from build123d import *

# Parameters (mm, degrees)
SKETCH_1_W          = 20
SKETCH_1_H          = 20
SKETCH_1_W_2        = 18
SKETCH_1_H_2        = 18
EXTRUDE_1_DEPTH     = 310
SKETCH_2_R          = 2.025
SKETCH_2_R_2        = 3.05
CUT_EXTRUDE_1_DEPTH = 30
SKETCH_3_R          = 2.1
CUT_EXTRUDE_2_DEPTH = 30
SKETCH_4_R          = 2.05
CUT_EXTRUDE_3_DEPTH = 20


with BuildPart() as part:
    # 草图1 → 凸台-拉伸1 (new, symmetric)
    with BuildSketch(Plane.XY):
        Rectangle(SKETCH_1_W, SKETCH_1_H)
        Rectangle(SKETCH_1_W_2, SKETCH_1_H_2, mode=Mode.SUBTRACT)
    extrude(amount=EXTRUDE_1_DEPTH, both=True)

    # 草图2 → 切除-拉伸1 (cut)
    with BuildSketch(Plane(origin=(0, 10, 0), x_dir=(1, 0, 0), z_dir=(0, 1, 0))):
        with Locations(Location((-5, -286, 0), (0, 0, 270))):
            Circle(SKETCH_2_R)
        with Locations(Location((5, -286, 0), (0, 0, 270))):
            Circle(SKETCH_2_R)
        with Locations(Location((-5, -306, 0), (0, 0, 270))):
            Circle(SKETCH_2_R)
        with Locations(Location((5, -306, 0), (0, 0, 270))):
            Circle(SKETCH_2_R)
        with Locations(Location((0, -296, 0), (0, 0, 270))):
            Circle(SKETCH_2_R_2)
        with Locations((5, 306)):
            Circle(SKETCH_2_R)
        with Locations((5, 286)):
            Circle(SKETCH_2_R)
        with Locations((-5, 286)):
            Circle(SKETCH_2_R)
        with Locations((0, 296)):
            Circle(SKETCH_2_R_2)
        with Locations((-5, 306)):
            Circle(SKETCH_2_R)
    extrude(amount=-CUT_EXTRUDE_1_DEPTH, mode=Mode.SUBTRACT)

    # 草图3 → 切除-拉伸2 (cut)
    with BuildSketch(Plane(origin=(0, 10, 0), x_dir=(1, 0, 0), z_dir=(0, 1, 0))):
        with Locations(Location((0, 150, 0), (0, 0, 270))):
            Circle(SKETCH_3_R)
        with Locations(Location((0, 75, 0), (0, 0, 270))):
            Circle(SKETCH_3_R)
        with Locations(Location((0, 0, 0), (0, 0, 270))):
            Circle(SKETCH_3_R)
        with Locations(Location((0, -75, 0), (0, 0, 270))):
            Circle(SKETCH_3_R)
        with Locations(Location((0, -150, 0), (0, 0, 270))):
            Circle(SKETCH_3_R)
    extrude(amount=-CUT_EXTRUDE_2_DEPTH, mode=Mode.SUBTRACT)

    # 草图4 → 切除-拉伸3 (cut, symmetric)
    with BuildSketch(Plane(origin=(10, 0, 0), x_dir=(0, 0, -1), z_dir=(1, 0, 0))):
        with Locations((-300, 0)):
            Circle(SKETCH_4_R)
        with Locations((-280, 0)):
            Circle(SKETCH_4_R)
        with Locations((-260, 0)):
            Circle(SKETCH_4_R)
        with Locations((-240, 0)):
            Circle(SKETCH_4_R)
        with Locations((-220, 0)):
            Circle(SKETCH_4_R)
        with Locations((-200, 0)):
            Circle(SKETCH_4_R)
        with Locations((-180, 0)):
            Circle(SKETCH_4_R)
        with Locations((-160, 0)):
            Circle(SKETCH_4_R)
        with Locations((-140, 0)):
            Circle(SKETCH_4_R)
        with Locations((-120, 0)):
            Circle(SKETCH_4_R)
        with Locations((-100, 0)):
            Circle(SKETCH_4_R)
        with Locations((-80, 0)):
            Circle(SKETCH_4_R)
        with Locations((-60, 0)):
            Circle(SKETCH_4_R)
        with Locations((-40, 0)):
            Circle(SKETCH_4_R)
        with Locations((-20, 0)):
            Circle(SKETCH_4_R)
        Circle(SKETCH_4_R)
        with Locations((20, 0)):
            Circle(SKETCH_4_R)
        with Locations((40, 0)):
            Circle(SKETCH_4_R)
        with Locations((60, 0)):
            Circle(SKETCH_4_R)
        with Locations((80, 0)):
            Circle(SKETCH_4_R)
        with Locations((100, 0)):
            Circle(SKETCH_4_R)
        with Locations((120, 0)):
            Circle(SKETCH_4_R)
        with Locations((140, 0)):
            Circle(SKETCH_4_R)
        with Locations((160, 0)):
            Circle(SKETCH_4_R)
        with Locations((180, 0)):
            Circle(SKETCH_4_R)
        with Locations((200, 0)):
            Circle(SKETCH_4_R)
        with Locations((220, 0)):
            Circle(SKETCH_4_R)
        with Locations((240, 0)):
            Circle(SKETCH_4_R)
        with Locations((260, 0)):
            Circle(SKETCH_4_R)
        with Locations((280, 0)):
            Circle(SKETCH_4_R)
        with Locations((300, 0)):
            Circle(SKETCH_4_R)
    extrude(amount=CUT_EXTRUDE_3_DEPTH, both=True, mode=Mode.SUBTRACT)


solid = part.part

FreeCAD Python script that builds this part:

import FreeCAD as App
import Part
import Sketcher
from FreeCAD import Vector
Q = App.Units.Quantity


def add_polygon(sketch, points):
    """Adds a closed chain of lines whose ends are joined by coincident constraints."""
    first, n = sketch.GeometryCount, len(points)
    for a, b in zip(points, points[1:] + points[:1]):
        sketch.addGeometry(Part.LineSegment(App.Vector(*a, 0), App.Vector(*b, 0)), False)
    for i in range(n):
        sketch.addConstraint(Sketcher.Constraint("Coincident", first + i, 2, first + (i + 1) % n, 1))

doc = App.newDocument("Part")
params = doc.addObject("Spreadsheet::Sheet", "Params")
for row, (alias, value) in enumerate([
    ("sketch1_width", "20 mm"),
    ("sketch1_width2", "18 mm"),
    ("pad1_length", "620 mm"),
    ("sketch2_diameter", "6.1 mm"),
    ("sketch2_diameter2", "4.05 mm"),
    ("pocket1_length", "30 mm"),
    ("sketch3_diameter", "4.2 mm"),
    ("pocket2_length", "30 mm"),
    ("sketch4_diameter", "4.1 mm"),
    ("pocket3_length", "40 mm"),
], start=1):
    params.set(f"A{row}", alias)
    params.set(f"B{row}", "=" + value)
    params.setAlias(f"B{row}", alias)

body = doc.addObject("PartDesign::Body", "Body")

sketch1 = body.newObject("Sketcher::SketchObject", "Sketch")
sketch1.AttachmentSupport = (doc.getObject("XY_Plane"), [""])
sketch1.MapMode = "FlatFace"
add_polygon(sketch1, [(-10, 10), (-10, -10), (10, -10), (10, 10)])
add_polygon(sketch1, [(9, -9), (-9, -9), (-9, 9), (9, 9)])
sketch1.addConstraint([
    Sketcher.Constraint("Vertical", 0),
    Sketcher.Constraint("Horizontal", 1),
    Sketcher.Constraint("Vertical", 2),
    Sketcher.Constraint("Horizontal", 3),
    Sketcher.Constraint("Horizontal", 4),
    Sketcher.Constraint("Vertical", 5),
    Sketcher.Constraint("Horizontal", 6),
    Sketcher.Constraint("Vertical", 7),
    Sketcher.Constraint("Symmetric", 0, 2, 2, 2, -1, 1),
    Sketcher.Constraint("Symmetric", 4, 2, 6, 2, -1, 1),
    Sketcher.Constraint("Equal", 3, 0),
    Sketcher.Constraint("Equal", 6, 5),
    Sketcher.Constraint("DistanceX", 1, 1, 1, 2, Q("20 mm")),
    Sketcher.Constraint("DistanceX", 4, 2, 4, 1, Q("18 mm")),
])
sketch1.setExpression("Constraints[20]", "Params.sketch1_width")
sketch1.setExpression("Constraints[21]", "Params.sketch1_width2")
pad1 = body.newObject("PartDesign::Pad", "Pad")
pad1.Profile = sketch1
pad1.setExpression("Length", "Params.pad1_length")
pad1.Midplane = True

sketch2 = body.newObject("Sketcher::SketchObject", "Sketch001")
sketch2.AttachmentSupport = (doc.getObject("XZ_Plane"), [""])
sketch2.MapMode = "FlatFace"
sketch2.AttachmentOffset = App.Placement(Vector(0, 0, -10), App.Rotation())
sketch2.addGeometry([
    Part.Circle(Vector(-5, 286, 0), Vector(0, 0, 1), 2.025),
    Part.Circle(Vector(5, 286, 0), Vector(0, 0, 1), 2.025),
    Part.Circle(Vector(-5, 306, 0), Vector(0, 0, 1), 2.025),
    Part.Circle(Vector(5, 306, 0), Vector(0, 0, 1), 2.025),
    Part.Circle(Vector(0, 296, 0), Vector(0, 0, 1), 3.05),
    Part.Circle(Vector(5, -306, 0), Vector(0, 0, 1), 2.025),
    Part.Circle(Vector(5, -286, 0), Vector(0, 0, 1), 2.025),
    Part.Circle(Vector(-5, -286, 0), Vector(0, 0, 1), 2.025),
    Part.Circle(Vector(0, -296, 0), Vector(0, 0, 1), 3.05),
    Part.Circle(Vector(-5, -306, 0), Vector(0, 0, 1), 2.025),
], False)
sketch2.addConstraint([
    Sketcher.Constraint("Equal", 0, 1),
    Sketcher.Constraint("Equal", 1, 2),
    Sketcher.Constraint("Equal", 2, 3),
    Sketcher.Constraint("Equal", 3, 5),
    Sketcher.Constraint("Equal", 5, 6),
    Sketcher.Constraint("Equal", 6, 7),
    Sketcher.Constraint("Equal", 4, 8),
    Sketcher.Constraint("Equal", 7, 9),
    Sketcher.Constraint("Symmetric", 2, 3, 5, 3, -1, 1),
    Sketcher.Constraint("Symmetric", 0, 3, 6, 3, -1, 1),
    Sketcher.Constraint("Symmetric", 1, 3, 7, 3, -1, 1),
    Sketcher.Constraint("Symmetric", 4, 3, 8, 3, -1, 1),
    Sketcher.Constraint("Symmetric", 3, 3, 9, 3, -1, 1),
    Sketcher.Constraint("Symmetric", 0, 3, 1, 3, -2),
    Sketcher.Constraint("Symmetric", 2, 3, 3, 3, -2),
    Sketcher.Constraint("PointOnObject", 4, 3, -2),
    Sketcher.Constraint("Vertical", 0, 3, 2, 3),
    Sketcher.Constraint("Diameter", 4, Q("6.1 mm")),
    Sketcher.Constraint("Diameter", 0, Q("4.05 mm")),
    Sketcher.Constraint("DistanceX", 0, 3, -1, 1, Q("5 mm")),
    Sketcher.Constraint("DistanceY", -1, 1, 0, 3, Q("286 mm")),
    Sketcher.Constraint("DistanceY", -1, 1, 2, 3, Q("306 mm")),
    Sketcher.Constraint("DistanceY", -1, 1, 4, 3, Q("296 mm")),
])
sketch2.setExpression("Constraints[17]", "Params.sketch2_diameter")
sketch2.setExpression("Constraints[18]", "Params.sketch2_diameter2")
pocket1 = body.newObject("PartDesign::Pocket", "Pocket")
pocket1.Profile = sketch2
pocket1.setExpression("Length", "Params.pocket1_length")
pocket1.Reversed = True

sketch3 = body.newObject("Sketcher::SketchObject", "Sketch002")
sketch3.AttachmentSupport = (doc.getObject("XZ_Plane"), [""])
sketch3.MapMode = "FlatFace"
sketch3.AttachmentOffset = App.Placement(Vector(0, 0, -10), App.Rotation())
sketch3.addGeometry([
    Part.Circle(Vector(0, -150, 0), Vector(0, 0, 1), 2.1),
    Part.Circle(Vector(0, -75, 0), Vector(0, 0, 1), 2.1),
    Part.Circle(Vector(0, 0, 0), Vector(0, 0, 1), 2.1),
    Part.Circle(Vector(0, 75, 0), Vector(0, 0, 1), 2.1),
    Part.Circle(Vector(0, 150, 0), Vector(0, 0, 1), 2.1),
], False)
sketch3.addConstraint([
    Sketcher.Constraint("Coincident", 2, 3, -1, 1),
    Sketcher.Constraint("Equal", 0, 1),
    Sketcher.Constraint("Equal", 1, 2),
    Sketcher.Constraint("Equal", 2, 3),
    Sketcher.Constraint("Equal", 3, 4),
    Sketcher.Constraint("Symmetric", 1, 3, 3, 3, -1, 1),
    Sketcher.Constraint("Symmetric", 0, 3, 4, 3, -1, 1),
    Sketcher.Constraint("PointOnObject", 0, 3, -2),
    Sketcher.Constraint("PointOnObject", 1, 3, -2),
    Sketcher.Constraint("Diameter", 0, Q("4.2 mm")),
    Sketcher.Constraint("DistanceY", 0, 3, -1, 1, Q("150 mm")),
    Sketcher.Constraint("DistanceY", 1, 3, -1, 1, Q("75 mm")),
])
sketch3.setExpression("Constraints[9]", "Params.sketch3_diameter")
pocket2 = body.newObject("PartDesign::Pocket", "Pocket001")
pocket2.Profile = sketch3
pocket2.setExpression("Length", "Params.pocket2_length")
pocket2.Reversed = True

sketch4 = body.newObject("Sketcher::SketchObject", "Sketch003")
sketch4.AttachmentSupport = (doc.getObject("YZ_Plane"), [""])
sketch4.MapMode = "FlatFace"
sketch4.AttachmentOffset = App.Placement(Vector(0, 0, 10), App.Rotation())
sketch4.addGeometry([
    Part.Circle(Vector(0, 300, 0), Vector(0, 0, 1), 2.05),
    Part.Circle(Vector(0, 280, 0), Vector(0, 0, 1), 2.05),
    Part.Circle(Vector(0, 260, 0), Vector(0, 0, 1), 2.05),
    Part.Circle(Vector(0, 240, 0), Vector(0, 0, 1), 2.05),
    Part.Circle(Vector(0, 220, 0), Vector(0, 0, 1), 2.05),
    Part.Circle(Vector(0, 200, 0), Vector(0, 0, 1), 2.05),
    Part.Circle(Vector(0, 180, 0), Vector(0, 0, 1), 2.05),
    Part.Circle(Vector(0, 160, 0), Vector(0, 0, 1), 2.05),
    Part.Circle(Vector(0, 140, 0), Vector(0, 0, 1), 2.05),
    Part.Circle(Vector(0, 120, 0), Vector(0, 0, 1), 2.05),
    Part.Circle(Vector(0, 100, 0), Vector(0, 0, 1), 2.05),
    Part.Circle(Vector(0, 80, 0), Vector(0, 0, 1), 2.05),
    Part.Circle(Vector(0, 60, 0), Vector(0, 0, 1), 2.05),
    Part.Circle(Vector(0, 40, 0), Vector(0, 0, 1), 2.05),
    Part.Circle(Vector(0, 20, 0), Vector(0, 0, 1), 2.05),
    Part.Circle(Vector(0, 0, 0), Vector(0, 0, 1), 2.05),
    Part.Circle(Vector(0, -20, 0), Vector(0, 0, 1), 2.05),
    Part.Circle(Vector(0, -40, 0), Vector(0, 0, 1), 2.05),
    Part.Circle(Vector(0, -60, 0), Vector(0, 0, 1), 2.05),
    Part.Circle(Vector(0, -80, 0), Vector(0, 0, 1), 2.05),
    Part.Circle(Vector(0, -100, 0), Vector(0, 0, 1), 2.05),
    Part.Circle(Vector(0, -120, 0), Vector(0, 0, 1), 2.05),
    Part.Circle(Vector(0, -140, 0), Vector(0, 0, 1), 2.05),
    Part.Circle(Vector(0, -160, 0), Vector(0, 0, 1), 2.05),
    Part.Circle(Vector(0, -180, 0), Vector(0, 0, 1), 2.05),
    Part.Circle(Vector(0, -200, 0), Vector(0, 0, 1), 2.05),
    Part.Circle(Vector(0, -220, 0), Vector(0, 0, 1), 2.05),
    Part.Circle(Vector(0, -240, 0), Vector(0, 0, 1), 2.05),
    Part.Circle(Vector(0, -260, 0), Vector(0, 0, 1), 2.05),
    Part.Circle(Vector(0, -280, 0), Vector(0, 0, 1), 2.05),
    Part.Circle(Vector(0, -300, 0), Vector(0, 0, 1), 2.05),
], False)
sketch4.addConstraint([
    Sketcher.Constraint("Coincident", 15, 3, -1, 1),
    Sketcher.Constraint("Equal", 0, 1),
    Sketcher.Constraint("Equal", 1, 2),
    Sketcher.Constraint("Equal", 2, 3),
    Sketcher.Constraint("Equal", 3, 4),
    Sketcher.Constraint("Equal", 4, 5),
    Sketcher.Constraint("Equal", 5, 6),
    Sketcher.Constraint("Equal", 6, 7),
    Sketcher.Constraint("Equal", 7, 8),
    Sketcher.Constraint("Equal", 8, 9),
    Sketcher.Constraint("Equal", 9, 10),
    Sketcher.Constraint("Equal", 10, 11),
    Sketcher.Constraint("Equal", 11, 12),
    Sketcher.Constraint("Equal", 12, 13),
    Sketcher.Constraint("Equal", 13, 14),
    Sketcher.Constraint("Equal", 14, 15),
    Sketcher.Constraint("Equal", 15, 16),
    Sketcher.Constraint("Equal", 16, 17),
    Sketcher.Constraint("Equal", 17, 18),
    Sketcher.Constraint("Equal", 18, 19),
    Sketcher.Constraint("Equal", 19, 20),
    Sketcher.Constraint("Equal", 20, 21),
    Sketcher.Constraint("Equal", 21, 22),
    Sketcher.Constraint("Equal", 22, 23),
    Sketcher.Constraint("Equal", 23, 24),
    Sketcher.Constraint("Equal", 24, 25),
    Sketcher.Constraint("Equal", 25, 26),
    Sketcher.Constraint("Equal", 26, 27),
    Sketcher.Constraint("Equal", 27, 28),
    Sketcher.Constraint("Equal", 28, 29),
    Sketcher.Constraint("Equal", 29, 30),
    Sketcher.Constraint("Symmetric", 14, 3, 16, 3, -1, 1),
    Sketcher.Constraint("Symmetric", 13, 3, 17, 3, -1, 1),
    Sketcher.Constraint("Symmetric", 12, 3, 18, 3, -1, 1),
    Sketcher.Constraint("Symmetric", 11, 3, 19, 3, -1, 1),
    Sketcher.Constraint("Symmetric", 10, 3, 20, 3, -1, 1),
    Sketcher.Constraint("Symmetric", 9, 3, 21, 3, -1, 1),
    Sketcher.Constraint("Symmetric", 8, 3, 22, 3, -1, 1),
    Sketcher.Constraint("Symmetric", 7, 3, 23, 3, -1, 1),
    Sketcher.Constraint("Symmetric", 6, 3, 24, 3, -1, 1),
    Sketcher.Constraint("Symmetric", 5, 3, 25, 3, -1, 1),
    Sketcher.Constraint("Symmetric", 4, 3, 26, 3, -1, 1),
    Sketcher.Constraint("Symmetric", 3, 3, 27, 3, -1, 1),
    Sketcher.Constraint("Symmetric", 2, 3, 28, 3, -1, 1),
    Sketcher.Constraint("Symmetric", 1, 3, 29, 3, -1, 1),
    Sketcher.Constraint("Symmetric", 0, 3, 30, 3, -1, 1),
    Sketcher.Constraint("PointOnObject", 0, 3, -2),
    Sketcher.Constraint("PointOnObject", 1, 3, -2),
    Sketcher.Constraint("PointOnObject", 2, 3, -2),
    Sketcher.Constraint("PointOnObject", 3, 3, -2),
    Sketcher.Constraint("PointOnObject", 4, 3, -2),
    Sketcher.Constraint("PointOnObject", 5, 3, -2),
    Sketcher.Constraint("PointOnObject", 6, 3, -2),
    Sketcher.Constraint("PointOnObject", 7, 3, -2),
    Sketcher.Constraint("PointOnObject", 8, 3, -2),
    Sketcher.Constraint("PointOnObject", 9, 3, -2),
    Sketcher.Constraint("PointOnObject", 10, 3, -2),
    Sketcher.Constraint("PointOnObject", 11, 3, -2),
    Sketcher.Constraint("PointOnObject", 12, 3, -2),
    Sketcher.Constraint("PointOnObject", 13, 3, -2),
    Sketcher.Constraint("PointOnObject", 14, 3, -2),
    Sketcher.Constraint("Diameter", 0, Q("4.1 mm")),
    Sketcher.Constraint("DistanceY", -1, 1, 0, 3, Q("300 mm")),
    Sketcher.Constraint("DistanceY", -1, 1, 1, 3, Q("280 mm")),
    Sketcher.Constraint("DistanceY", -1, 1, 2, 3, Q("260 mm")),
    Sketcher.Constraint("DistanceY", -1, 1, 3, 3, Q("240 mm")),
    Sketcher.Constraint("DistanceY", -1, 1, 4, 3, Q("220 mm")),
    Sketcher.Constraint("DistanceY", -1, 1, 5, 3, Q("200 mm")),
    Sketcher.Constraint("DistanceY", -1, 1, 6, 3, Q("180 mm")),
    Sketcher.Constraint("DistanceY", -1, 1, 7, 3, Q("160 mm")),
    Sketcher.Constraint("DistanceY", -1, 1, 8, 3, Q("140 mm")),
    Sketcher.Constraint("DistanceY", -1, 1, 9, 3, Q("120 mm")),
    Sketcher.Constraint("DistanceY", -1, 1, 10, 3, Q("100 mm")),
    Sketcher.Constraint("DistanceY", -1, 1, 11, 3, Q("80 mm")),
    Sketcher.Constraint("DistanceY", -1, 1, 12, 3, Q("60 mm")),
    Sketcher.Constraint("DistanceY", -1, 1, 13, 3, Q("40 mm")),
    Sketcher.Constraint("DistanceY", -1, 1, 14, 3, Q("20 mm")),
])
sketch4.setExpression("Constraints[61]", "Params.sketch4_diameter")
pocket3 = body.newObject("PartDesign::Pocket", "Pocket002")
pocket3.Profile = sketch4
pocket3.setExpression("Length", "Params.pocket3_length")
pocket3.Midplane = True

doc.recompute()
